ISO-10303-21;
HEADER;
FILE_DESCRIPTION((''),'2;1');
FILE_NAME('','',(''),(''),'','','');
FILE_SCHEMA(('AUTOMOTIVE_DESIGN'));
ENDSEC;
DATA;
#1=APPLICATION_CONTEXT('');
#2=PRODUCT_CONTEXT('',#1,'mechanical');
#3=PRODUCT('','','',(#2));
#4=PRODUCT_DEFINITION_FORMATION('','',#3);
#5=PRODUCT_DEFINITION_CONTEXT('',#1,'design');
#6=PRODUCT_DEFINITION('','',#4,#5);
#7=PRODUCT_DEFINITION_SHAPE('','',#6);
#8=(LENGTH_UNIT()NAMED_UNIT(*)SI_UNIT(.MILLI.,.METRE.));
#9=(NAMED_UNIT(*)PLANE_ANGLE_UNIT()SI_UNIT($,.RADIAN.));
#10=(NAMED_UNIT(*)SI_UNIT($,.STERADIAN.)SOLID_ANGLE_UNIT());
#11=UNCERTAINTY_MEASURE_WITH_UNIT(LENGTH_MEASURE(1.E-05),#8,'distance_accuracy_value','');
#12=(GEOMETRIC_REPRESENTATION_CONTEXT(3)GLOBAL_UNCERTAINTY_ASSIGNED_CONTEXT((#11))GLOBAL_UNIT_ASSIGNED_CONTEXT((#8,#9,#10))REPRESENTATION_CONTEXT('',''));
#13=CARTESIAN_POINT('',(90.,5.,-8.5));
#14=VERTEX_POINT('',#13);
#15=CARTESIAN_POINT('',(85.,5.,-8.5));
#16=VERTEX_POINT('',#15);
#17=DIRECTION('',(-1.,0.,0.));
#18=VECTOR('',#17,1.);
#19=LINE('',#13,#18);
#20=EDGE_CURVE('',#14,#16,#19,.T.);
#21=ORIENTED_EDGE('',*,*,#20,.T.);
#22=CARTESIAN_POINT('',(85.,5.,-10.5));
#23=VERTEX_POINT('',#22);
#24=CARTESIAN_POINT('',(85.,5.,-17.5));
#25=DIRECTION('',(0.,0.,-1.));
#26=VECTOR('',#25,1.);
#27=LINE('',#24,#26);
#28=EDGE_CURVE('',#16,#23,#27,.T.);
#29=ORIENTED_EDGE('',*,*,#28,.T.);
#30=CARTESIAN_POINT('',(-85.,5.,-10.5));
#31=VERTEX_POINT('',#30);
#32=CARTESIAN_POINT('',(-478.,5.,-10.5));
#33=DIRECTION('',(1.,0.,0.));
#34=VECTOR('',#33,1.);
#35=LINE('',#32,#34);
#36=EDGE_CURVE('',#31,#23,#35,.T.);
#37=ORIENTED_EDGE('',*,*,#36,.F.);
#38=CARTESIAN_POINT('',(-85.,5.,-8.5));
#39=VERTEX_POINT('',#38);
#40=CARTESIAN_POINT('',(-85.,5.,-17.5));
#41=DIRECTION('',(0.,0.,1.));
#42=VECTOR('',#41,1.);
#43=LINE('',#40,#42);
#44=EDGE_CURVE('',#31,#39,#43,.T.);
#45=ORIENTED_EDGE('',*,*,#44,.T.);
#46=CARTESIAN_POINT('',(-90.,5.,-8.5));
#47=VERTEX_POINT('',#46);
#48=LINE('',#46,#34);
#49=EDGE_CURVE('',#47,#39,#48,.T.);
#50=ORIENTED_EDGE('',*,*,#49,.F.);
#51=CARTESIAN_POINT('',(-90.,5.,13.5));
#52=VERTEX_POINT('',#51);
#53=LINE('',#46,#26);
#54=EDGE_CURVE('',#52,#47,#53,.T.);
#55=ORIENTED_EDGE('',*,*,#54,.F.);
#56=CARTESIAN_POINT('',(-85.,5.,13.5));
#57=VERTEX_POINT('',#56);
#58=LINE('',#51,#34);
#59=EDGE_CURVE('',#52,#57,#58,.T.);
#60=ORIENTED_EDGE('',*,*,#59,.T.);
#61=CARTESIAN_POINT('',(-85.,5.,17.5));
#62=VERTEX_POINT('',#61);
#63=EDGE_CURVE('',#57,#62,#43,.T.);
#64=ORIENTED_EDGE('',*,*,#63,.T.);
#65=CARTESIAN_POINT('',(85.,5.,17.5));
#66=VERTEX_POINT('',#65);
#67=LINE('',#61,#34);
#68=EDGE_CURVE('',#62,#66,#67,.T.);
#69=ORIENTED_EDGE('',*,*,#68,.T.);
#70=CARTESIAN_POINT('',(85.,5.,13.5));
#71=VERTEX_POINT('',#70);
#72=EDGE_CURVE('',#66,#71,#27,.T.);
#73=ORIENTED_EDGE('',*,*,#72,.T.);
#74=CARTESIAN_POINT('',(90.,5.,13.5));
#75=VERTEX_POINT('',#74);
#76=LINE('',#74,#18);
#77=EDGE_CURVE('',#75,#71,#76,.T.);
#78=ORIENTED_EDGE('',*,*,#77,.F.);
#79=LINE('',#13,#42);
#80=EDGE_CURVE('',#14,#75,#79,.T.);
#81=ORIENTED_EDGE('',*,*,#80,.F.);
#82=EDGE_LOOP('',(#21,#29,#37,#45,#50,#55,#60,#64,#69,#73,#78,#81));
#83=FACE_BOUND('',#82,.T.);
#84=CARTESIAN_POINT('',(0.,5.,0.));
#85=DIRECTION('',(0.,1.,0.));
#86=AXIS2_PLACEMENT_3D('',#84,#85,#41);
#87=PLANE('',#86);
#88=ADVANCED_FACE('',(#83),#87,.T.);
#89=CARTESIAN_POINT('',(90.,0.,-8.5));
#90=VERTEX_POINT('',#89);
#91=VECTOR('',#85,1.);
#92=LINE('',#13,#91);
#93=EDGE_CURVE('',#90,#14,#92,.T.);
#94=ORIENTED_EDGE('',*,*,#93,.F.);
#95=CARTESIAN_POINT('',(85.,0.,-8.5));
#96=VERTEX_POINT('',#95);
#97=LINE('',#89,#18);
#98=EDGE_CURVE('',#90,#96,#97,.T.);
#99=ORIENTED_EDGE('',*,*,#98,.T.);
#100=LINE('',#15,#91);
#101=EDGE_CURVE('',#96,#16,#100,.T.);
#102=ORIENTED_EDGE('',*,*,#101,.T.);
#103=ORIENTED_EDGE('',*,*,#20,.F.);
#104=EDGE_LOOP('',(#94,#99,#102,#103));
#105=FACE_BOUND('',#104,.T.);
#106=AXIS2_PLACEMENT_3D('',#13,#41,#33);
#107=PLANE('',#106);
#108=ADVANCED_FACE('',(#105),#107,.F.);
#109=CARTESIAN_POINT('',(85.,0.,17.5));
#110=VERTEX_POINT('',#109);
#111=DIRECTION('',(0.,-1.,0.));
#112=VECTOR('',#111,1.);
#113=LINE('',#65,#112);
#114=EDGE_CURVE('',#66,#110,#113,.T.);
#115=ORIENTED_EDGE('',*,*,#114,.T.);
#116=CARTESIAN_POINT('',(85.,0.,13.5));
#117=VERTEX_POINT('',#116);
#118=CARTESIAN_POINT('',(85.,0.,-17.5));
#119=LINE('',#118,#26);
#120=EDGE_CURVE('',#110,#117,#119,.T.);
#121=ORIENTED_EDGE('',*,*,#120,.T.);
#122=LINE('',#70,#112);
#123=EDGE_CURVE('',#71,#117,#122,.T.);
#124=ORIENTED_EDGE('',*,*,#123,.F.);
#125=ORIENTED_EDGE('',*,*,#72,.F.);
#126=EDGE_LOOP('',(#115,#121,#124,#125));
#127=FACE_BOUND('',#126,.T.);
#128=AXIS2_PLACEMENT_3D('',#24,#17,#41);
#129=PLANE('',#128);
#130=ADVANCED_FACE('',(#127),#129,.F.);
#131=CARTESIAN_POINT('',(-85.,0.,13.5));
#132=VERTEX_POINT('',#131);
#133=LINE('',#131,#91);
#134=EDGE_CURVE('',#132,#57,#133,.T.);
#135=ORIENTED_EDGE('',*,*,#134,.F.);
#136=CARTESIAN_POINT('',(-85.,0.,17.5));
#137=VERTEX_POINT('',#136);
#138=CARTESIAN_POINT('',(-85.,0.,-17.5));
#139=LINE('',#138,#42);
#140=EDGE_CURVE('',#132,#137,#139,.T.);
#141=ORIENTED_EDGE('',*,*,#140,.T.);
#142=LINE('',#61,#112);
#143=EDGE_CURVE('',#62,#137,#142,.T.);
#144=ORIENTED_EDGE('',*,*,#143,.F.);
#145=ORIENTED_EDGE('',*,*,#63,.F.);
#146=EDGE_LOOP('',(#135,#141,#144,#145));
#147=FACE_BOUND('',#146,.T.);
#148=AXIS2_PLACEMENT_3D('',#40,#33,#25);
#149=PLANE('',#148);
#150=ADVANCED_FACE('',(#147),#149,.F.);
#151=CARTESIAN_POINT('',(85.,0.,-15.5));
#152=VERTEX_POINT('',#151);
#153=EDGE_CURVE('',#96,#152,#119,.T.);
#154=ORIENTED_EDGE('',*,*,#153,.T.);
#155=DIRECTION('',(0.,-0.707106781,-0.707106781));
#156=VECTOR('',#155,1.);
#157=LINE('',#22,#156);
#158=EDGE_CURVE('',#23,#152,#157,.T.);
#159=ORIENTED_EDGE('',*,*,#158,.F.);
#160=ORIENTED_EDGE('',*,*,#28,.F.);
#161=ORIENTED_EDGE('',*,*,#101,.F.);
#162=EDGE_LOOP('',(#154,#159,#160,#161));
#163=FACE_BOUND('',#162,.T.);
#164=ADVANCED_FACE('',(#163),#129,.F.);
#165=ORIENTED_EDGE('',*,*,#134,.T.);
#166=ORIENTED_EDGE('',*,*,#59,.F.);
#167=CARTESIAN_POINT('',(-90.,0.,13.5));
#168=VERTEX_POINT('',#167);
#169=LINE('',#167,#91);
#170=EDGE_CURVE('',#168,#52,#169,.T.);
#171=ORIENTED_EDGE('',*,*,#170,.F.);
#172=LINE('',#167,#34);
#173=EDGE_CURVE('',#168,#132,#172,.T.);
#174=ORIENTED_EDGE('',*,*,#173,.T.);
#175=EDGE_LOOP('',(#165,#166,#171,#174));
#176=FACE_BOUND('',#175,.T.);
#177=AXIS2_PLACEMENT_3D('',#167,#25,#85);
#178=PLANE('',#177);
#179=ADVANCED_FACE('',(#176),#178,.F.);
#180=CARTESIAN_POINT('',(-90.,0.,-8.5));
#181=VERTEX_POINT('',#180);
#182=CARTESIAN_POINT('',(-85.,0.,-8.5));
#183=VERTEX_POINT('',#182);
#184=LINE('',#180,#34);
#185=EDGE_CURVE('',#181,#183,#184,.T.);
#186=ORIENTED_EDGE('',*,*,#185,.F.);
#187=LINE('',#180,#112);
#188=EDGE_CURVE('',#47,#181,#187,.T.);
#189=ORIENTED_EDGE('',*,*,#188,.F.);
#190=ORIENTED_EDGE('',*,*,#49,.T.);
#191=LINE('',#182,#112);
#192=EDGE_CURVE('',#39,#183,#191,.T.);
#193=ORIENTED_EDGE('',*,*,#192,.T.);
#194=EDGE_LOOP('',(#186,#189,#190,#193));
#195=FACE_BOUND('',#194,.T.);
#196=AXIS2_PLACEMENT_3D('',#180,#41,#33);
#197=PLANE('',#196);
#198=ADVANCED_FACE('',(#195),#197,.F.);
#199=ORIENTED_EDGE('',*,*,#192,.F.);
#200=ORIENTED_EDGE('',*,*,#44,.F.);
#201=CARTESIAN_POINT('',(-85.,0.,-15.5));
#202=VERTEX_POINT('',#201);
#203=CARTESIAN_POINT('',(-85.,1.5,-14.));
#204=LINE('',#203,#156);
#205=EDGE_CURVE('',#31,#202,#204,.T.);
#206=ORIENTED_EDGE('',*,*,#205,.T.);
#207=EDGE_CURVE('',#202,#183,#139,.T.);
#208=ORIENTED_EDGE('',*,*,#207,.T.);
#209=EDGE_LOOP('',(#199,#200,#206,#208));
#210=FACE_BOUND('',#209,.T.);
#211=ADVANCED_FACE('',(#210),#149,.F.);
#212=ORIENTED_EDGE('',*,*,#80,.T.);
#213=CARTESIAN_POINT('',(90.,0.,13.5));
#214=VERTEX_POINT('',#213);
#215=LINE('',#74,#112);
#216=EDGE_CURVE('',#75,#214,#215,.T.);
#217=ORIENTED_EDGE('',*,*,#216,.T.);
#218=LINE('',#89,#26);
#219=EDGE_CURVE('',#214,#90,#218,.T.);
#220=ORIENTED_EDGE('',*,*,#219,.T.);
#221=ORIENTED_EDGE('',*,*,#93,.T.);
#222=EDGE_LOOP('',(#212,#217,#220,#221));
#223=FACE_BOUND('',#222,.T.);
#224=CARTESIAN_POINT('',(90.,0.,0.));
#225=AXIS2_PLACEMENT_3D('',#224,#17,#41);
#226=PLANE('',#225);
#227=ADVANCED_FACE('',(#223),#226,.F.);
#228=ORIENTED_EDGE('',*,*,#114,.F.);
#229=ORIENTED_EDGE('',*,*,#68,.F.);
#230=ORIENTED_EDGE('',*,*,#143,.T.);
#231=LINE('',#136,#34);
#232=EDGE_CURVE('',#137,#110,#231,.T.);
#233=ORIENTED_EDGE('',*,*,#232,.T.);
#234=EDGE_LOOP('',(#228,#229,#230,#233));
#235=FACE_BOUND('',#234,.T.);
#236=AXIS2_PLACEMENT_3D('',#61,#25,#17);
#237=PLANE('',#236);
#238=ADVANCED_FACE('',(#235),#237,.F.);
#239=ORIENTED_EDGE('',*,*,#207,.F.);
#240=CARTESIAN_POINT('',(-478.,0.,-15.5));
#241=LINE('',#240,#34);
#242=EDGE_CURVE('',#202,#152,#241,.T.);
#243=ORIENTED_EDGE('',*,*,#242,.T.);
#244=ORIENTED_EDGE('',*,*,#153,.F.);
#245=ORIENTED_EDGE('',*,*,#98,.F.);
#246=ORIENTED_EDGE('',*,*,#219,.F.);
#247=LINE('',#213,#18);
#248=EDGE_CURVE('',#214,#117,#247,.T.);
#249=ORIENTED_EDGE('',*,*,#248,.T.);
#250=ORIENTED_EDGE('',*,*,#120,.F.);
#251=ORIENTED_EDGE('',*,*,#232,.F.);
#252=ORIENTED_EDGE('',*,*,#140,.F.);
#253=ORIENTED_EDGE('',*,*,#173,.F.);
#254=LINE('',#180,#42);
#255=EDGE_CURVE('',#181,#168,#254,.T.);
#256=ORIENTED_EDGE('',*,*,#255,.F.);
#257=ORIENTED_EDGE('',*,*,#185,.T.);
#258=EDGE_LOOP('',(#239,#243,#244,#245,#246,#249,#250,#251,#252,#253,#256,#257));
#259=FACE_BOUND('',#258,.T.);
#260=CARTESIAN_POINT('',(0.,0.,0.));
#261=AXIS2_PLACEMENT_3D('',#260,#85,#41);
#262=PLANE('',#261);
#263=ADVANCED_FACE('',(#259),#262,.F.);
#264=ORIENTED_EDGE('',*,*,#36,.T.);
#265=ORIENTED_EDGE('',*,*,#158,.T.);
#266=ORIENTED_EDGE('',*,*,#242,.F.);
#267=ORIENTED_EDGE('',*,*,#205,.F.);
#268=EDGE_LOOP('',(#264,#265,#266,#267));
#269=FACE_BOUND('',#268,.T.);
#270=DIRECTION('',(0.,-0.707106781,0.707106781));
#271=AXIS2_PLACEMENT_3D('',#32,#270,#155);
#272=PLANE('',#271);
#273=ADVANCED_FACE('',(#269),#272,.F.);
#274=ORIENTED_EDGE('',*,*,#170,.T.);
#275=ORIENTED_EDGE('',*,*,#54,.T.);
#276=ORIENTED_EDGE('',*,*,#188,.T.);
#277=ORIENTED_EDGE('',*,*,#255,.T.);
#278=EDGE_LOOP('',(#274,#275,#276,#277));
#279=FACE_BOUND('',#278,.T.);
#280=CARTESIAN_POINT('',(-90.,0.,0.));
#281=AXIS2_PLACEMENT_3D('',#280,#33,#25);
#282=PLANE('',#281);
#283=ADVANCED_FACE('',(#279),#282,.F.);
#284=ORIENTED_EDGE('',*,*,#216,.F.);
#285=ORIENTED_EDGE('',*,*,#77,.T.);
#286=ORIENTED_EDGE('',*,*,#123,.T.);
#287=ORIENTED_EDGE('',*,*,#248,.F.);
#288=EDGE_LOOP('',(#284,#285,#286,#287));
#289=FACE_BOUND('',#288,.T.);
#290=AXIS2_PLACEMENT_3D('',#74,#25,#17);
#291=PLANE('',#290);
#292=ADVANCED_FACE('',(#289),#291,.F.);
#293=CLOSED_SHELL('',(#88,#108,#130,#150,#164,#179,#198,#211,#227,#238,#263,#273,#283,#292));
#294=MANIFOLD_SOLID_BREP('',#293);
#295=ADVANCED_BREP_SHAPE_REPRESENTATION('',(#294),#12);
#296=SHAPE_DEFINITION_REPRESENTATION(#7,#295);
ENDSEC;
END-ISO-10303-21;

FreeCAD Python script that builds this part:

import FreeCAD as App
import Part
import Sketcher
from FreeCAD import Vector
Q = App.Units.Quantity


def add_polygon(sketch, points):
    """Adds a closed chain of lines whose ends are joined by coincident constraints."""
    first, n = sketch.GeometryCount, len(points)
    for a, b in zip(points, points[1:] + points[:1]):
        sketch.addGeometry(Part.LineSegment(App.Vector(*a, 0), App.Vector(*b, 0)), False)
    for i in range(n):
        sketch.addConstraint(Sketcher.Constraint("Coincident", first + i, 2, first + (i + 1) % n, 1))

doc = App.newDocument("Part")
body = doc.addObject("PartDesign::Body", "Body")

sketch1 = body.newObject("Sketcher::SketchObject", "Sketch")
sketch1.AttachmentSupport = (doc.getObject("XZ_Plane"), [""])
sketch1.MapMode = "FlatFace"
add_polygon(sketch1, [(-85, -18), (-85, 18), (85, 18), (85, -18)])
sketch1.addConstraint(Sketcher.Constraint("Vertical", 0))
sketch1.addConstraint(Sketcher.Constraint("Horizontal", 1))
sketch1.addConstraint(Sketcher.Constraint("Vertical", 2))
sketch1.addConstraint(Sketcher.Constraint("Horizontal", 3))
sketch1.addConstraint(Sketcher.Constraint("Symmetric", 0, 2, 2, 2, -1, 1))
sketch1.addConstraint(Sketcher.Constraint("DistanceX", 1, 1, 1, 2, 170.0))
sketch1.addConstraint(Sketcher.Constraint("DistanceY", 0, 1, 0, 2, 35.0))
pad1 = body.newObject("PartDesign::Pad", "Pad")
pad1.Profile = sketch1
pad1.Length = 5
pad1.Reversed = True

sketch2 = body.newObject("Sketcher::SketchObject", "Sketch001")
sketch2.AttachmentSupport = (doc.getObject("YZ_Plane"), [""])
sketch2.MapMode = "FlatFace"
sketch2.AttachmentOffset = App.Placement(Vector(0, 0, -85), App.Rotation())
add_polygon(sketch2, [(0, -18), (5, -12), (5, -18)])
sketch2.addConstraint(Sketcher.Constraint("Vertical", 1))
sketch2.addConstraint(Sketcher.Constraint("Horizontal", 2))
sketch2.addConstraint(Sketcher.Constraint("PointOnObject", 2, 2, -2))
sketch2.addConstraint(Sketcher.Constraint("Equal", 2, 1))
sketch2.addConstraint(Sketcher.Constraint("DistanceX", 2, 2, 2, 1, 5.0))
sketch2.addConstraint(Sketcher.Constraint("DistanceY", 0, 2, -1, 1, 12.5))
pocket1 = body.newObject("PartDesign::Pocket", "Pocket")
pocket1.Profile = sketch2
pocket1.Length = 200
pocket1.Reversed = True

sketch3 = body.newObject("Sketcher::SketchObject", "Sketch002")
sketch3.AttachmentSupport = (doc.getObject("YZ_Plane"), [""])
sketch3.MapMode = "FlatFace"
sketch3.AttachmentOffset = App.Placement(Vector(0, 0, -85), App.Rotation())
add_polygon(sketch3, [(5, -8), (0, -8), (0, 14), (5, 14)])
sketch3.addConstraint(Sketcher.Constraint("Horizontal", 0))
sketch3.addConstraint(Sketcher.Constraint("Vertical", 1))
sketch3.addConstraint(Sketcher.Constraint("Horizontal", 2))
sketch3.addConstraint(Sketcher.Constraint("Vertical", 3))
sketch3.addConstraint(Sketcher.Constraint("PointOnObject", 0, 2, -2))
sketch3.addConstraint(Sketcher.Constraint("DistanceX", 0, 2, 0, 1, 5.0))
sketch3.addConstraint(Sketcher.Constraint("DistanceY", 1, 1, 1, 2, 22.0))
sketch3.addConstraint(Sketcher.Constraint("DistanceY", 0, 2, -1, 1, 8.5))
pad2 = body.newObject("PartDesign::Pad", "Pad001")
pad2.Profile = sketch3
pad2.Length = 5
pad2.Reversed = True

sketch4 = body.newObject("Sketcher::SketchObject", "Sketch003")
sketch4.AttachmentSupport = (doc.getObject("YZ_Plane"), [""])
sketch4.MapMode = "FlatFace"
sketch4.AttachmentOffset = App.Placement(Vector(0, 0, 85), App.Rotation())
add_polygon(sketch4, [(5, 14), (0, 14), (0, -8), (5, -8)])
sketch4.addConstraint(Sketcher.Constraint("Horizontal", 0))
sketch4.addConstraint(Sketcher.Constraint("Vertical", 1))
sketch4.addConstraint(Sketcher.Constraint("Horizontal", 2))
sketch4.addConstraint(Sketcher.Constraint("Vertical", 3))
sketch4.addConstraint(Sketcher.Constraint("PointOnObject", 0, 2, -2))
sketch4.addConstraint(Sketcher.Constraint("DistanceX", 0, 2, 0, 1, 5.0))
sketch4.addConstraint(Sketcher.Constraint("DistanceY", 1, 2, 1, 1, 22.0))
sketch4.addConstraint(Sketcher.Constraint("DistanceY", -1, 1, 0, 2, 13.5))
pad3 = body.newObject("PartDesign::Pad", "Pad002")
pad3.Profile = sketch4
pad3.Length = 5

sketch5 = body.newObject("Sketcher::SketchObject", "Sketch004")
sketch5.AttachmentSupport = (doc.getObject("YZ_Plane"), [""])
sketch5.MapMode = "FlatFace"
sketch5.AttachmentOffset = App.Placement(Vector(0, 0, 85), App.Rotation())
add_polygon(sketch5, [(5, -12.5), (5, -10.5), (0, -15.5), (0, -17.5)])
sketch5.addConstraint(Sketcher.Constraint("Vertical", 0))
sketch5.addConstraint(Sketcher.Constraint("Vertical", 2))
sketch5.addConstraint(Sketcher.Constraint("PointOnObject", 1, 2, -2))
sketch5.addConstraint(Sketcher.Constraint("Parallel", 1, 3))
sketch5.addConstraint(Sketcher.Constraint("DistanceY", 0, 1, 0, 2, 2.0))
sketch5.addConstraint(Sketcher.Constraint("Angle", 1, Q("-135 deg")))
sketch5.addConstraint(Sketcher.Constraint("DistanceX", -1, 1, 0, 2, 5.0))
sketch5.addConstraint(Sketcher.Constraint("DistanceY", 0, 2, -1, 1, 10.5))
pocket2 = body.newObject("PartDesign::Pocket", "Pocket001")
pocket2.Profile = sketch5
pocket2.Length = 563

doc.recompute()
